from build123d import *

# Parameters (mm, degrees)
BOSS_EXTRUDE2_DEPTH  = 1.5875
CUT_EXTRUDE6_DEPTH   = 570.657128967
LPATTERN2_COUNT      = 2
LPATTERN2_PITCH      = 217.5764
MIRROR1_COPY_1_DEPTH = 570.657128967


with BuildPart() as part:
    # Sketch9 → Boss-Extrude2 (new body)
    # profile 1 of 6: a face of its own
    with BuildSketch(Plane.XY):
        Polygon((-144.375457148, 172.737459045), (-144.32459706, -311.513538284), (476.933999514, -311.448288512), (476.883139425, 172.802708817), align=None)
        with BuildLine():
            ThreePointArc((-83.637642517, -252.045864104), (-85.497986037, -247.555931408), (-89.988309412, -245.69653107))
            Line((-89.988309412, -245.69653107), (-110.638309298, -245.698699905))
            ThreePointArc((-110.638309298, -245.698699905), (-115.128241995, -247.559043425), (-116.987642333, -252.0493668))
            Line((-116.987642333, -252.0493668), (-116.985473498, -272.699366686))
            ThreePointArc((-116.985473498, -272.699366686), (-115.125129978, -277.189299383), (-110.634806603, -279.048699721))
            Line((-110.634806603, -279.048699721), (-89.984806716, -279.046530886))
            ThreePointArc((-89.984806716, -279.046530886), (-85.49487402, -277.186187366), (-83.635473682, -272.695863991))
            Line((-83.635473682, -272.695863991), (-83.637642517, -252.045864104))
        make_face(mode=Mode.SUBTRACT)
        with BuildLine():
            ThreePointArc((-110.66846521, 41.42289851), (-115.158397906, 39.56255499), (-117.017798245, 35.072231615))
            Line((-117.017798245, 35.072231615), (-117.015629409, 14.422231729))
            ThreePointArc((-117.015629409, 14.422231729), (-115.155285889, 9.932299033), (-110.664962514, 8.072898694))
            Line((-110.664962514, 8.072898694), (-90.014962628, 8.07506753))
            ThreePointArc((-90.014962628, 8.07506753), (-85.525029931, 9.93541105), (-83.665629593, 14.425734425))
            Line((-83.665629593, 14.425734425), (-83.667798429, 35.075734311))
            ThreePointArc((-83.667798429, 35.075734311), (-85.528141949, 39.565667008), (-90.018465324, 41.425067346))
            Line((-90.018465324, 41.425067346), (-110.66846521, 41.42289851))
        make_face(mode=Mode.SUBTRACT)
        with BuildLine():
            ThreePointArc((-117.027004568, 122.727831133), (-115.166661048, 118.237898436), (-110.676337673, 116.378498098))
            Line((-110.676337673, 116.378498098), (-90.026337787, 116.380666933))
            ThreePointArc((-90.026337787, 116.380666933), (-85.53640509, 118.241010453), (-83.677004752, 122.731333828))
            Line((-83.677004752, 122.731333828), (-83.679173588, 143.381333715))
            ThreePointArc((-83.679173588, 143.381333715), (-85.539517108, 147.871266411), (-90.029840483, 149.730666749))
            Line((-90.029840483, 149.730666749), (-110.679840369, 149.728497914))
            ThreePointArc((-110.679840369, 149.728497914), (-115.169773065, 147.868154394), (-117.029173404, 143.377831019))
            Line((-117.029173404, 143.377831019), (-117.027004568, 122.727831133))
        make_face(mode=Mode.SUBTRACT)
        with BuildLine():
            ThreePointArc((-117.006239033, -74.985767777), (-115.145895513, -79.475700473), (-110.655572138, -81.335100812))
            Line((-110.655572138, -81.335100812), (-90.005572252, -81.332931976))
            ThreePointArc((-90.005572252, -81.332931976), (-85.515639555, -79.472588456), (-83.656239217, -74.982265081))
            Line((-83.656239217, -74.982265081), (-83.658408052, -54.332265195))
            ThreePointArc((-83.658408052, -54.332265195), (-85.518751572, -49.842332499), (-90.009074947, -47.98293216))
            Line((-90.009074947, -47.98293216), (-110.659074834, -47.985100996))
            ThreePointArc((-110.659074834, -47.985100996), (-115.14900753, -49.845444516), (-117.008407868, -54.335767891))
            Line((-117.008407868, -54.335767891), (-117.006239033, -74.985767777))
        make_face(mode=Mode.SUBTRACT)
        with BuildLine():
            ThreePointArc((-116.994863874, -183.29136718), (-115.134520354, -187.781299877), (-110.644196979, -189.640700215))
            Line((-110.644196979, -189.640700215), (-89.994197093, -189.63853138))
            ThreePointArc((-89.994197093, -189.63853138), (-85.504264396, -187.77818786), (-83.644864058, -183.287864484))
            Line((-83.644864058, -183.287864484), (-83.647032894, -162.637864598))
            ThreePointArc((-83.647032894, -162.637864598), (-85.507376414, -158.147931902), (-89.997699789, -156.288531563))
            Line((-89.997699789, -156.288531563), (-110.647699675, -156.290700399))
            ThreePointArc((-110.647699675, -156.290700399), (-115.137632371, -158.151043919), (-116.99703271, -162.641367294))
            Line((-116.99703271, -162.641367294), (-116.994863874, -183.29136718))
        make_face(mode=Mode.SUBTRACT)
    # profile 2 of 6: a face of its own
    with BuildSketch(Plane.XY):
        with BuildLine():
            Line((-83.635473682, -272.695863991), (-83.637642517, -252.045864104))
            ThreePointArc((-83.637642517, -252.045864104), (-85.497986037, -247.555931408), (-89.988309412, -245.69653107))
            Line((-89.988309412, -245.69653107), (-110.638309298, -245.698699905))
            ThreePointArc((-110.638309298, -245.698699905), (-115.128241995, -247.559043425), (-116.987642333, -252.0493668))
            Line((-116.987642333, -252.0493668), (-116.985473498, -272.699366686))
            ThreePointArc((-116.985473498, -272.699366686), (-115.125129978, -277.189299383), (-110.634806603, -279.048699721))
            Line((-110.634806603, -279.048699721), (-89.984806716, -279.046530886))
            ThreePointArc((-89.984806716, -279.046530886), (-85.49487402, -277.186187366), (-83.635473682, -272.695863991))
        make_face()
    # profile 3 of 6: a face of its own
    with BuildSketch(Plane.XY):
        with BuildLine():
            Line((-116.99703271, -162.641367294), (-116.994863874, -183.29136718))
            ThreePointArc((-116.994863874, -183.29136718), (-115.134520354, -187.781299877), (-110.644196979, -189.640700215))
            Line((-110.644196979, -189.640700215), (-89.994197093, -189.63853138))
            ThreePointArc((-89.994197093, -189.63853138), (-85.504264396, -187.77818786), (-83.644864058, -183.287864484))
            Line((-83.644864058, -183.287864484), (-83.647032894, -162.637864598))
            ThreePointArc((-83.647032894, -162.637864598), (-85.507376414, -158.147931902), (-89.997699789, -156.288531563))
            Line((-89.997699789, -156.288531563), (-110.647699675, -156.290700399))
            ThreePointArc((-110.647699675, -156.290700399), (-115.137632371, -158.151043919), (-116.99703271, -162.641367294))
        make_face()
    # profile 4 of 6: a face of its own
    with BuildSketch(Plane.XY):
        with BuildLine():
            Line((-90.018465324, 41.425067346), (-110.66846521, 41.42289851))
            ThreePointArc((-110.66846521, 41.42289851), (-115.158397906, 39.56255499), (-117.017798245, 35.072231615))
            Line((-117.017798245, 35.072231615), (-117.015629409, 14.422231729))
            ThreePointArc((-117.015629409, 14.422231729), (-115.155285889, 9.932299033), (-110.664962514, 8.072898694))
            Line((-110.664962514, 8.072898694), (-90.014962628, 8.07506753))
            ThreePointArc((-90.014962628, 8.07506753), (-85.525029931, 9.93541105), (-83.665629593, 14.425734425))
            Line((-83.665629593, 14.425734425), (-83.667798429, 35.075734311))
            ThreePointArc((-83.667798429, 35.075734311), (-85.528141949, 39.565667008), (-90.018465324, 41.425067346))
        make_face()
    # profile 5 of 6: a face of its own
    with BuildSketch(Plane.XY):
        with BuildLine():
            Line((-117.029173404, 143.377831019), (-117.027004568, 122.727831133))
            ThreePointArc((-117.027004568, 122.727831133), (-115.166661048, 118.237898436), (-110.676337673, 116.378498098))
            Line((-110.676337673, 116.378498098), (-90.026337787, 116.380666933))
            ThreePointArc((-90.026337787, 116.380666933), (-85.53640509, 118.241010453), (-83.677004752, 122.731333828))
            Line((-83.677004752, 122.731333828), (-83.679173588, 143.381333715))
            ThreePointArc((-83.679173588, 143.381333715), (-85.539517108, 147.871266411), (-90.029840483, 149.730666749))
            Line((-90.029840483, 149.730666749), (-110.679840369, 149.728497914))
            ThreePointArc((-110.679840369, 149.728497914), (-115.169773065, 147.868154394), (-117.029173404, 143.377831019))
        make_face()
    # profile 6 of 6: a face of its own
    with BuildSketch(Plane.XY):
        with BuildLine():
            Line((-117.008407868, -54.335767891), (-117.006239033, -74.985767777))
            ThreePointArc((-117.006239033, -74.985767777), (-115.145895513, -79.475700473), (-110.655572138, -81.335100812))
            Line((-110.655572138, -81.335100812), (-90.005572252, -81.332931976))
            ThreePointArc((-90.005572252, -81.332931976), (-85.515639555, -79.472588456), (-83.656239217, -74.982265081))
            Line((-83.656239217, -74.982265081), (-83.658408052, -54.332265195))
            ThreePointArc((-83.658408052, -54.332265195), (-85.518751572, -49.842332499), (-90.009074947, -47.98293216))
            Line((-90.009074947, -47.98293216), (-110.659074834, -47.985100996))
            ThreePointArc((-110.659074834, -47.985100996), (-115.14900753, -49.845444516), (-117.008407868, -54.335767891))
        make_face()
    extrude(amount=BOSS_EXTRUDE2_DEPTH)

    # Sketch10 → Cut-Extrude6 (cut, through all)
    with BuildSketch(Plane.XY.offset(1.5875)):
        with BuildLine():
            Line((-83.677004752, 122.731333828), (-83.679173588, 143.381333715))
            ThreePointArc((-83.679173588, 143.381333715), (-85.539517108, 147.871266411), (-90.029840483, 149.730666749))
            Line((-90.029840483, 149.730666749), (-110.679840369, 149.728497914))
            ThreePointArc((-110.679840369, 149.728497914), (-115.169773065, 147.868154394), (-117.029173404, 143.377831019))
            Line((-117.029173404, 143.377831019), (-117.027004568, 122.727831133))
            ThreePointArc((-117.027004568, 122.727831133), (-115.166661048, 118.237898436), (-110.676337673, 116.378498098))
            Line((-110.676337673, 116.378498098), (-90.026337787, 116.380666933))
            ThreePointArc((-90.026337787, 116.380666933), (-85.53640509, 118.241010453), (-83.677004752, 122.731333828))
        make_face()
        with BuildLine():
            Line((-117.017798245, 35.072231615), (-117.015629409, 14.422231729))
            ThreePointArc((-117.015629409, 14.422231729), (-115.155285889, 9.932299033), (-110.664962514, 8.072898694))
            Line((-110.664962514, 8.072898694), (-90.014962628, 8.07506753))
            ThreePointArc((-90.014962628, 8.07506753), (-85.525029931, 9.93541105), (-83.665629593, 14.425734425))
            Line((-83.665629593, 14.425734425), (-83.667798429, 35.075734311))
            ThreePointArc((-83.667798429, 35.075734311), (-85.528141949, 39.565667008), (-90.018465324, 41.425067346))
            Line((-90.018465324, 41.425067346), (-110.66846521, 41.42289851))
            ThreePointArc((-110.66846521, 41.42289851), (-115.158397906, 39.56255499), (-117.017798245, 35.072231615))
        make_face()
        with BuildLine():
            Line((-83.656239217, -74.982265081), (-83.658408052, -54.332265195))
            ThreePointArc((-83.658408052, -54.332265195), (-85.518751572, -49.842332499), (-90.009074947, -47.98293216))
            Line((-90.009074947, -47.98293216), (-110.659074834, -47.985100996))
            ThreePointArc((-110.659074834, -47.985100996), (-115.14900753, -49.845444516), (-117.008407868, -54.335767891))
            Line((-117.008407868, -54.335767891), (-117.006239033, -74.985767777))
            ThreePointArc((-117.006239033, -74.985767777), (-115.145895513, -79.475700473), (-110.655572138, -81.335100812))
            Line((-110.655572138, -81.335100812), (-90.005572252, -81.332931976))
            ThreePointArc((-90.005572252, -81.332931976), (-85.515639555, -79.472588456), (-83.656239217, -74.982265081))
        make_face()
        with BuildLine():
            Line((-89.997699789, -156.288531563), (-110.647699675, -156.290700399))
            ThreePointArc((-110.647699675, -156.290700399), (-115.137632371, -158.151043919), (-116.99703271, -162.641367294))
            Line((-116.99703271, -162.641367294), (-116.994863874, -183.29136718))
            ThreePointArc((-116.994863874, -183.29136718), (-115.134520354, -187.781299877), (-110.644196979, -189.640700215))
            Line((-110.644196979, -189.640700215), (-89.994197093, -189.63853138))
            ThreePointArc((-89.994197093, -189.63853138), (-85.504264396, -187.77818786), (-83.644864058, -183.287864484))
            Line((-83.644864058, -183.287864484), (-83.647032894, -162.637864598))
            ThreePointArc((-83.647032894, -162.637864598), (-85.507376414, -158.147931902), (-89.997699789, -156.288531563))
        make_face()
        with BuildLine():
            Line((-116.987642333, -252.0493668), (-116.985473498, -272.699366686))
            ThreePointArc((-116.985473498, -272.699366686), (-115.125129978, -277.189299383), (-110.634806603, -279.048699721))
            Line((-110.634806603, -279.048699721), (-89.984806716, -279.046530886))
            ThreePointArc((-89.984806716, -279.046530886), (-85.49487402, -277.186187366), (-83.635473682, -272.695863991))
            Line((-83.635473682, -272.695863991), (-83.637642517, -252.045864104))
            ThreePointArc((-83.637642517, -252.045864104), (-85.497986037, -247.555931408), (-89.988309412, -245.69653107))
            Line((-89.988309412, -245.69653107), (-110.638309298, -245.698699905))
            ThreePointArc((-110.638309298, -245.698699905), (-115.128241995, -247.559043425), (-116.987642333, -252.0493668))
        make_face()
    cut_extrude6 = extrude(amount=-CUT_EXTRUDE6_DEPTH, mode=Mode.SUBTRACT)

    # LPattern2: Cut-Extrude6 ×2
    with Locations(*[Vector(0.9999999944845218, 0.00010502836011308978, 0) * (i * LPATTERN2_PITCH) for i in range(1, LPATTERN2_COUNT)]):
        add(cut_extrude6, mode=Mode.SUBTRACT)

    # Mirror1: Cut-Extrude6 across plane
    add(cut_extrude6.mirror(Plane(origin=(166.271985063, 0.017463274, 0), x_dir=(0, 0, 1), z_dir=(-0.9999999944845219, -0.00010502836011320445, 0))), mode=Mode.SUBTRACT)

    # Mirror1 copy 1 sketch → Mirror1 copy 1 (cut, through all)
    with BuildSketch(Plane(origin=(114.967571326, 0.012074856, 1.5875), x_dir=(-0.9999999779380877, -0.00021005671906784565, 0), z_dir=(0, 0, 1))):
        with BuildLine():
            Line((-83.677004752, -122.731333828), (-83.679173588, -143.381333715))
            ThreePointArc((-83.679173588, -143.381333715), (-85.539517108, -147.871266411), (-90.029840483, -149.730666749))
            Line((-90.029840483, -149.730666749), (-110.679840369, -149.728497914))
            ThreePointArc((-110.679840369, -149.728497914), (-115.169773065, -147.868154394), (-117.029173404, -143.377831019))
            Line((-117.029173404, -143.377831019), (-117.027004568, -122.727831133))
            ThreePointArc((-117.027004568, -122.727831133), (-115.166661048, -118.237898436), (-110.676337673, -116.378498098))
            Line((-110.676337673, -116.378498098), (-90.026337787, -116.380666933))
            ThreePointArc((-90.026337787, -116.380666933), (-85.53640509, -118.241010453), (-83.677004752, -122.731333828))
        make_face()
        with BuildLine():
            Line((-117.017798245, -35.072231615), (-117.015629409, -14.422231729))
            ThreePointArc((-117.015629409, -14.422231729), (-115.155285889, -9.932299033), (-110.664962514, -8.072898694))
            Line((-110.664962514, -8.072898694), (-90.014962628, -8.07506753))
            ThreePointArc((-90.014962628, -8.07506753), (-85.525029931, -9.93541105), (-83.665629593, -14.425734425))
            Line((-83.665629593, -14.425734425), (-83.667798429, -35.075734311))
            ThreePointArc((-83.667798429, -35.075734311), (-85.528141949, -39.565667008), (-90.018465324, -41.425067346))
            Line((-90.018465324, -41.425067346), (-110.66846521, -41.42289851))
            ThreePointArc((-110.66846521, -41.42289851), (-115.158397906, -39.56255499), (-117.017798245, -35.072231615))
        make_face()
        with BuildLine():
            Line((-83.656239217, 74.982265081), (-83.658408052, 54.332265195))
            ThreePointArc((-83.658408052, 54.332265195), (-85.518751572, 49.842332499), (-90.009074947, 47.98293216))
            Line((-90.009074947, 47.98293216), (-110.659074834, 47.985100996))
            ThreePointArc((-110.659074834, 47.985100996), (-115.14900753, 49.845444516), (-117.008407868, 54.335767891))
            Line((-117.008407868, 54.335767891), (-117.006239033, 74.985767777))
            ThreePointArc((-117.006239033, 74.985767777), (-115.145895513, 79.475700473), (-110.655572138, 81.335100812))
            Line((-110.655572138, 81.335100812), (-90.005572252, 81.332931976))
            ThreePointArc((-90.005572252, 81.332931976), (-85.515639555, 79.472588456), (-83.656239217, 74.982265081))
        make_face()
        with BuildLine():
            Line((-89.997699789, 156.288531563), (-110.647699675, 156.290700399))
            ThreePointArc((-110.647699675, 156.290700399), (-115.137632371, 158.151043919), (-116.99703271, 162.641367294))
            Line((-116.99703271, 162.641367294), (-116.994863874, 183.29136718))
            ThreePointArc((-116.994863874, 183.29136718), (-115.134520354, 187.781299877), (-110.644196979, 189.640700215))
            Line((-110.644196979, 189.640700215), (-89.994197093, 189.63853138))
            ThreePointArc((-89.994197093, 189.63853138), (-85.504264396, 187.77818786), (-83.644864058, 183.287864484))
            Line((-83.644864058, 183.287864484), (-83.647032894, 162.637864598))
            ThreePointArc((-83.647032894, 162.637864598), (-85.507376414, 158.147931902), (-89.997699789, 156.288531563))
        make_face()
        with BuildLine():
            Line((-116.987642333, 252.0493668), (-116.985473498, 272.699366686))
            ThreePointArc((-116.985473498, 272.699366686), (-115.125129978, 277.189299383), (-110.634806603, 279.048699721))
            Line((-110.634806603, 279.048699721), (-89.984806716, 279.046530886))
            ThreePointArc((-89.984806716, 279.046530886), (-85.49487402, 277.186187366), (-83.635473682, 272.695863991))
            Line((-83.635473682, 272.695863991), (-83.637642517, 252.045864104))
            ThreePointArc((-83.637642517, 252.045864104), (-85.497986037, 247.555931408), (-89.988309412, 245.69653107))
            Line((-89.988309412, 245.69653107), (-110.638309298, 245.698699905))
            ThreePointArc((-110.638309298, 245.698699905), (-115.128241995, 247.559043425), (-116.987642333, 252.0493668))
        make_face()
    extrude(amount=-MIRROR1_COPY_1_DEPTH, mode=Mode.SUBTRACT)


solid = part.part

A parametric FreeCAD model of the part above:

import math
import FreeCAD as App
import Part
import Sketcher

V = App.Vector
Q = App.Units.Quantity

doc = App.newDocument("Part")
body = doc.addObject("PartDesign::Body", "Body")

# Sketch on XY plane
sketch1 = body.newObject("Sketcher::SketchObject", "Sketch")
sketch1.AttachmentSupport = (doc.getObject("XY_Plane"), [""])
sketch1.MapMode = "FlatFace"
sketch1.addGeometry([
    Part.LineSegment(V(-144, 173, 0), V(-144, -312, 0)),
    Part.LineSegment(V(-144, -312, 0), V(477, -311, 0)),
    Part.LineSegment(V(477, -311, 0), V(477, 173, 0)),
    Part.LineSegment(V(477, 173, 0), V(-144, 173, 0)),
], False)
sketch1.addConstraint([
    Sketcher.Constraint("Coincident", 0, 2, 1, 1),
    Sketcher.Constraint("Coincident", 1, 2, 2, 1),
    Sketcher.Constraint("Coincident", 2, 2, 3, 1),
    Sketcher.Constraint("Coincident", 3, 2, 0, 1),
    Sketcher.Constraint("Perpendicular", 0, 1),
    Sketcher.Constraint("Perpendicular", 1, 2),
    Sketcher.Constraint("Perpendicular", 2, 3),
    Sketcher.Constraint("Distance", 0, Q("19.065 in")),
    Sketcher.Constraint("Distance", 1, Q("24.459 in")),
    Sketcher.Constraint("DistanceX", -1, 1, 1, 2, Q("476.934 mm")),
    Sketcher.Constraint("DistanceY", 0, 2, -1, 1, Q("311.513538 mm")),
    Sketcher.Constraint("DistanceY", 1, 2, -1, 1, Q("311.448289 mm")),
])
pad1 = body.newObject("PartDesign::Pad", "Pad")
pad1.Profile = sketch1
pad1.Length = Q("0.0625 in")

# Sketch on XY plane
sketch2 = body.newObject("Sketcher::SketchObject", "Sketch001")
sketch2.AttachmentSupport = (doc.getObject("XY_Plane"), [""])
sketch2.MapMode = "FlatFace"
sketch2.AttachmentOffset = App.Placement(V(0, 0, 0.0625 * 25.4), App.Rotation())
sketch2.addGeometry([
    Part.LineSegment(V(-84, 123, 0), V(-84, 143, 0)),  # 0
    Part.ArcOfCircle(Part.Circle(V(-90, 143, 0), V(0, 0, 1), 6), math.radians(0), math.radians(90)),  # 1
    Part.LineSegment(V(-90, 150, 0), V(-111, 150, 0)),  # 2
    Part.ArcOfCircle(Part.Circle(V(-111, 143, 0), V(0, 0, 1), 6), math.radians(90), math.radians(180)),  # 3
    Part.LineSegment(V(-117, 143, 0), V(-117, 123, 0)),  # 4
    Part.ArcOfCircle(Part.Circle(V(-111, 123, 0), V(0, 0, 1), 6), math.radians(-180), math.radians(-90)),  # 5
    Part.LineSegment(V(-111, 116, 0), V(-90, 116, 0)),  # 6
    Part.ArcOfCircle(Part.Circle(V(-90, 123, 0), V(0, 0, 1), 6), math.radians(-90), math.radians(0)),  # 7
    Part.LineSegment(V(-117, 35, 0), V(-117, 14, 0)),  # 8
    Part.ArcOfCircle(Part.Circle(V(-111, 14, 0), V(0, 0, 1), 6), math.radians(-180), math.radians(-90)),  # 9
    Part.LineSegment(V(-111, 8, 0), V(-90, 8, 0)),  # 10
    Part.ArcOfCircle(Part.Circle(V(-90, 14, 0), V(0, 0, 1), 6), math.radians(-90), math.radians(0)),  # 11
    Part.LineSegment(V(-84, 14, 0), V(-84, 35, 0)),  # 12
    Part.ArcOfCircle(Part.Circle(V(-90, 35, 0), V(0, 0, 1), 6), math.radians(0), math.radians(90)),  # 13
    Part.LineSegment(V(-90, 41, 0), V(-111, 41, 0)),  # 14
    Part.ArcOfCircle(Part.Circle(V(-111, 35, 0), V(0, 0, 1), 6), math.radians(90), math.radians(180)),  # 15
    Part.LineSegment(V(-84, -75, 0), V(-84, -54, 0)),  # 16
    Part.ArcOfCircle(Part.Circle(V(-90, -54, 0), V(0, 0, 1), 6), math.radians(0), math.radians(90)),  # 17
    Part.LineSegment(V(-90, -48, 0), V(-111, -48, 0)),  # 18
    Part.ArcOfCircle(Part.Circle(V(-111, -54, 0), V(0, 0, 1), 6), math.radians(90), math.radians(180)),  # 19
    Part.LineSegment(V(-117, -54, 0), V(-117, -75, 0)),  # 20
    Part.ArcOfCircle(Part.Circle(V(-111, -75, 0), V(0, 0, 1), 6), math.radians(-180), math.radians(-90)),  # 21
    Part.LineSegment(V(-111, -81, 0), V(-90, -81, 0)),  # 22
    Part.ArcOfCircle(Part.Circle(V(-90, -75, 0), V(0, 0, 1), 6), math.radians(-90), math.radians(0)),  # 23
    Part.LineSegment(V(-90, -156, 0), V(-111, -156, 0)),  # 24
    Part.ArcOfCircle(Part.Circle(V(-111, -163, 0), V(0, 0, 1), 6), math.radians(90), math.radians(180)),  # 25
    Part.LineSegment(V(-117, -163, 0), V(-117, -183, 0)),  # 26
    Part.ArcOfCircle(Part.Circle(V(-111, -183, 0), V(0, 0, 1), 6), math.radians(-180), math.radians(-90)),  # 27
    Part.LineSegment(V(-111, -190, 0), V(-90, -190, 0)),  # 28
    Part.ArcOfCircle(Part.Circle(V(-90, -183, 0), V(0, 0, 1), 6), math.radians(-90), math.radians(0)),  # 29
    Part.LineSegment(V(-84, -183, 0), V(-84, -163, 0)),  # 30
    Part.ArcOfCircle(Part.Circle(V(-90, -163, 0), V(0, 0, 1), 6), math.radians(0), math.radians(90)),  # 31
    Part.LineSegment(V(-117, -252, 0), V(-117, -273, 0)),  # 32
    Part.ArcOfCircle(Part.Circle(V(-111, -273, 0), V(0, 0, 1), 6), math.radians(-180), math.radians(-90)),  # 33
    Part.LineSegment(V(-111, -279, 0), V(-90, -279, 0)),  # 34
    Part.ArcOfCircle(Part.Circle(V(-90, -273, 0), V(0, 0, 1), 6), math.radians(-90), math.radians(0)),  # 35
    Part.LineSegment(V(-84, -273, 0), V(-84, -252, 0)),  # 36
    Part.ArcOfCircle(Part.Circle(V(-90, -252, 0), V(0, 0, 1), 6), math.radians(0), math.radians(90)),  # 37
    Part.LineSegment(V(-90, -246, 0), V(-111, -246, 0)),  # 38
    Part.ArcOfCircle(Part.Circle(V(-111, -252, 0), V(0, 0, 1), 6), math.radians(90), math.radians(180)),  # 39
], False)
sketch2.addConstraint([
    Sketcher.Constraint("Tangent", 0, 2, 1, 1),
    Sketcher.Constraint("Tangent", 1, 2, 2, 1),
    Sketcher.Constraint("Tangent", 2, 2, 3, 1),
    Sketcher.Constraint("Tangent", 3, 2, 4, 1),
    Sketcher.Constraint("Tangent", 4, 2, 5, 1),
    Sketcher.Constraint("Tangent", 5, 2, 6, 1),
    Sketcher.Constraint("Tangent", 6, 2, 7, 1),
    Sketcher.Constraint("Tangent", 7, 2, 0, 1),
    Sketcher.Constraint("Tangent", 8, 2, 9, 1),
    Sketcher.Constraint("Tangent", 9, 2, 10, 1),
    Sketcher.Constraint("Tangent", 10, 2, 11, 1),
    Sketcher.Constraint("Tangent", 11, 2, 12, 1),
    Sketcher.Constraint("Tangent", 12, 2, 13, 1),
    Sketcher.Constraint("Tangent", 13, 2, 14, 1),
    Sketcher.Constraint("Tangent", 14, 2, 15, 1),
    Sketcher.Constraint("Tangent", 15, 2, 8, 1),
    Sketcher.Constraint("Tangent", 16, 2, 17, 1),
    Sketcher.Constraint("Tangent", 17, 2, 18, 1),
    Sketcher.Constraint("Tangent", 18, 2, 19, 1),
    Sketcher.Constraint("Tangent", 19, 2, 20, 1),
    Sketcher.Constraint("Tangent", 20, 2, 21, 1),
    Sketcher.Constraint("Tangent", 21, 2, 22, 1),
    Sketcher.Constraint("Tangent", 22, 2, 23, 1),
    Sketcher.Constraint("Tangent", 23, 2, 16, 1),
    Sketcher.Constraint("Tangent", 24, 2, 25, 1),
    Sketcher.Constraint("Tangent", 25, 2, 26, 1),
    Sketcher.Constraint("Tangent", 26, 2, 27, 1),
    Sketcher.Constraint("Tangent", 27, 2, 28, 1),
    Sketcher.Constraint("Tangent", 28, 2, 29, 1),
    Sketcher.Constraint("Tangent", 29, 2, 30, 1),
    Sketcher.Constraint("Tangent", 30, 2, 31, 1),
    Sketcher.Constraint("Tangent", 31, 2, 24, 1),
    Sketcher.Constraint("Tangent", 32, 2, 33, 1),
    Sketcher.Constraint("Tangent", 33, 2, 34, 1),
    Sketcher.Constraint("Tangent", 34, 2, 35, 1),
    Sketcher.Constraint("Tangent", 35, 2, 36, 1),
    Sketcher.Constraint("Tangent", 36, 2, 37, 1),
    Sketcher.Constraint("Tangent", 37, 2, 38, 1),
    Sketcher.Constraint("Tangent", 38, 2, 39, 1),
    Sketcher.Constraint("Tangent", 39, 2, 32, 1),
    Sketcher.Constraint("Equal", 1, 3),
    Sketcher.Constraint("Equal", 3, 5),
    Sketcher.Constraint("Equal", 5, 7),
    Sketcher.Constraint("Equal", 7, 9),
    Sketcher.Constraint("Equal", 9, 11),
    Sketcher.Constraint("Equal", 11, 13),
    Sketcher.Constraint("Equal", 13, 15),
    Sketcher.Constraint("Equal", 15, 17),
    Sketcher.Constraint("Equal", 17, 19),
    Sketcher.Constraint("Equal", 19, 21),
    Sketcher.Constraint("Equal", 21, 23),
    Sketcher.Constraint("Equal", 23, 25),
    Sketcher.Constraint("Equal", 25, 27),
    Sketcher.Constraint("Equal", 27, 29),
    Sketcher.Constraint("Equal", 29, 31),
    Sketcher.Constraint("Equal", 31, 33),
    Sketcher.Constraint("Equal", 33, 35),
    Sketcher.Constraint("Equal", 35, 37),
    Sketcher.Constraint("Equal", 37, 39),
    Sketcher.Constraint("Perpendicular", 0, 2),
    Sketcher.Constraint("Perpendicular", 2, 4),
    Sketcher.Constraint("Perpendicular", 4, 6),
    Sketcher.Constraint("Perpendicular", 6, 8),
    Sketcher.Constraint("Perpendicular", 8, 10),
    Sketcher.Constraint("Perpendicular", 10, 12),
    Sketcher.Constraint("Perpendicular", 12, 14),
    Sketcher.Constraint("Perpendicular", 14, 16),
    Sketcher.Constraint("Perpendicular", 16, 18),
    Sketcher.Constraint("Perpendicular", 18, 20),
    Sketcher.Constraint("Perpendicular", 20, 22),
    Sketcher.Constraint("Parallel", 22, 24),
    Sketcher.Constraint("Perpendicular", 24, 26),
    Sketcher.Constraint("Perpendicular", 26, 28),
    Sketcher.Constraint("Perpendicular", 28, 30),
    Sketcher.Constraint("Parallel", 30, 32),
    Sketcher.Constraint("Perpendicular", 32, 34),
    Sketcher.Constraint("Perpendicular", 34, 36),
    Sketcher.Constraint("Perpendicular", 36, 38),
    Sketcher.Constraint("Equal", 0, 2),
    Sketcher.Constraint("Equal", 6, 8),
    Sketcher.Constraint("Equal", 8, 10),
    Sketcher.Constraint("Equal", 14, 16),
    Sketcher.Constraint("Equal", 16, 18),
    Sketcher.Constraint("Equal", 22, 24),
    Sketcher.Constraint("Equal", 24, 26),
    Sketcher.Constraint("Equal", 30, 32),
    Sketcher.Constraint("Equal", 32, 34),
    Sketcher.Constraint("Radius", 1, Q("0.25 in")),
    Sketcher.Constraint("DistanceY", 17, 3, 13, 3, Q("3.52 in")),
    Sketcher.Constraint("DistanceY", 33, 3, 27, 3, Q("3.52 in")),
    Sketcher.Constraint("DistanceX", 15, 3, -1, 1, Q("4.3569999 in")),
    Sketcher.Constraint("DistanceY", 9, 3, 5, 3, Q("4.264 in")),
    Sketcher.Constraint("DistanceY", 25, 3, 19, 3, Q("4.264 in")),
    Sketcher.Constraint("Distance", 0, Q("20.65 mm")),
    Sketcher.Constraint("DistanceY", -1, 1, 5, 3, Q("122.728498 mm")),
    Sketcher.Constraint("DistanceX", 24, 2, -1, 1, Q("110.6477 mm")),
    Sketcher.Constraint("DistanceX", 9, 3, -1, 1, Q("110.665629 mm")),
    Sketcher.Constraint("DistanceX", 17, 3, -1, 1, Q("90.008408 mm")),
    Sketcher.Constraint("DistanceX", 1, 2, -1, 1, Q("90.02984 mm")),
    Sketcher.Constraint("DistanceX", 37, 2, -1, 1, Q("89.988309 mm")),
])
pocket1 = body.newObject("PartDesign::Pocket", "Pocket")
pocket1.Profile = sketch2
pocket1.Type = "ThroughAll"
doc.recompute()

datumline = body.newObject("PartDesign::Line", "DatumLine")
datumline.Placement = App.Placement(V(0, 0, 0), App.Rotation(V(0, 0, 1), V(0.999999994, 0.000105028, 0)))
linearpattern = body.newObject("PartDesign::LinearPattern", "LinearPattern")
linearpattern.Originals = [pocket1]
linearpattern.Direction = (datumline, [""])
linearpattern.Mode = "offset"
linearpattern.Offset = Q("8.566 in")
linearpattern.Occurrences = 2
body.Tip = linearpattern
doc.recompute()

datumplane = body.newObject("PartDesign::Plane", "DatumPlane")
datumplane.Placement = App.Placement(V(166.271985, 0.017463, 0), App.Rotation(V(-0.000105028, 0.999999994, 0), V(0, 0, -1), V(-0.999999994, -0.000105028, 0), "ZXY"))
mirrored = body.newObject("PartDesign::Mirrored", "Mirrored")
mirrored.Originals = [pocket1]
mirrored.MirrorPlane = (datumplane, [""])
body.Tip = mirrored

# Sketch on XY plane
sketch3 = body.newObject("Sketcher::SketchObject", "Sketch002")
sketch3.AttachmentSupport = (doc.getObject("XY_Plane"), [""])
sketch3.MapMode = "FlatFace"
sketch3.AttachmentOffset = App.Placement(V(0, 0, 0.0625 * 25.4), App.Rotation())
sketch3.addGeometry([
    Part.LineSegment(V(199, 143, 0), V(199, 123, 0)),  # 0
    Part.ArcOfCircle(Part.Circle(V(205, 123, 0), V(0, 0, 1), 6), math.radians(-180), math.radians(-90)),  # 1
    Part.LineSegment(V(205, 116, 0), V(226, 116, 0)),  # 2
    Part.ArcOfCircle(Part.Circle(V(226, 123, 0), V(0, 0, 1), 6), math.radians(-90), math.radians(0)),  # 3
    Part.LineSegment(V(232, 123, 0), V(232, 143, 0)),  # 4
    Part.ArcOfCircle(Part.Circle(V(226, 143, 0), V(0, 0, 1), 6), math.radians(0), math.radians(90)),  # 5
    Part.LineSegment(V(226, 150, 0), V(205, 150, 0)),  # 6
    Part.ArcOfCircle(Part.Circle(V(205, 143, 0), V(0, 0, 1), 6), math.radians(90), math.radians(180)),  # 7
    Part.LineSegment(V(232, 14, 0), V(232, 35, 0)),  # 8
    Part.ArcOfCircle(Part.Circle(V(226, 35, 0), V(0, 0, 1), 6), math.radians(0), math.radians(90)),  # 9
    Part.LineSegment(V(226, 41, 0), V(205, 41, 0)),  # 10
    Part.ArcOfCircle(Part.Circle(V(205, 35, 0), V(0, 0, 1), 6), math.radians(90), math.radians(180)),  # 11
    Part.LineSegment(V(199, 35, 0), V(199, 14, 0)),  # 12
    Part.ArcOfCircle(Part.Circle(V(205, 14, 0), V(0, 0, 1), 6), math.radians(-180), math.radians(-90)),  # 13
    Part.LineSegment(V(205, 8, 0), V(226, 8, 0)),  # 14
    Part.ArcOfCircle(Part.Circle(V(226, 14, 0), V(0, 0, 1), 6), math.radians(-90), math.radians(0)),  # 15
    Part.LineSegment(V(199, -54, 0), V(199, -75, 0)),  # 16
    Part.ArcOfCircle(Part.Circle(V(205, -75, 0), V(0, 0, 1), 6), math.radians(-180), math.radians(-90)),  # 17
    Part.LineSegment(V(205, -81, 0), V(226, -81, 0)),  # 18
    Part.ArcOfCircle(Part.Circle(V(226, -75, 0), V(0, 0, 1), 6), math.radians(-90), math.radians(0)),  # 19
    Part.LineSegment(V(232, -75, 0), V(232, -54, 0)),  # 20
    Part.ArcOfCircle(Part.Circle(V(226, -54, 0), V(0, 0, 1), 6), math.radians(0), math.radians(90)),  # 21
    Part.LineSegment(V(226, -48, 0), V(205, -48, 0)),  # 22
    Part.ArcOfCircle(Part.Circle(V(205, -54, 0), V(0, 0, 1), 6), math.radians(90), math.radians(180)),  # 23
    Part.LineSegment(V(226, -156, 0), V(205, -156, 0)),  # 24
    Part.ArcOfCircle(Part.Circle(V(205, -163, 0), V(0, 0, 1), 6), math.radians(90), math.radians(180)),  # 25
    Part.LineSegment(V(199, -163, 0), V(199, -183, 0)),  # 26
    Part.ArcOfCircle(Part.Circle(V(205, -183, 0), V(0, 0, 1), 6), math.radians(-180), math.radians(-90)),  # 27
    Part.LineSegment(V(205, -190, 0), V(226, -190, 0)),  # 28
    Part.ArcOfCircle(Part.Circle(V(226, -183, 0), V(0, 0, 1), 6), math.radians(-90), math.radians(0)),  # 29
    Part.LineSegment(V(232, -183, 0), V(232, -163, 0)),  # 30
    Part.ArcOfCircle(Part.Circle(V(226, -163, 0), V(0, 0, 1), 6), math.radians(0), math.radians(90)),  # 31
    Part.LineSegment(V(232, -273, 0), V(232, -252, 0)),  # 32
    Part.ArcOfCircle(Part.Circle(V(226, -252, 0), V(0, 0, 1), 6), math.radians(0), math.radians(90)),  # 33
    Part.LineSegment(V(226, -246, 0), V(205, -246, 0)),  # 34
    Part.ArcOfCircle(Part.Circle(V(205, -252, 0), V(0, 0, 1), 6), math.radians(90), math.radians(180)),  # 35
    Part.LineSegment(V(199, -252, 0), V(199, -273, 0)),  # 36
    Part.ArcOfCircle(Part.Circle(V(205, -273, 0), V(0, 0, 1), 6), math.radians(-180), math.radians(-90)),  # 37
    Part.LineSegment(V(205, -279, 0), V(226, -279, 0)),  # 38
    Part.ArcOfCircle(Part.Circle(V(226, -273, 0), V(0, 0, 1), 6), math.radians(-90), math.radians(0)),  # 39
], False)
sketch3.addConstraint([
    Sketcher.Constraint("Tangent", 0, 2, 1, 1),
    Sketcher.Constraint("Tangent", 1, 2, 2, 1),
    Sketcher.Constraint("Tangent", 2, 2, 3, 1),
    Sketcher.Constraint("Tangent", 3, 2, 4, 1),
    Sketcher.Constraint("Tangent", 4, 2, 5, 1),
    Sketcher.Constraint("Tangent", 5, 2, 6, 1),
    Sketcher.Constraint("Tangent", 6, 2, 7, 1),
    Sketcher.Constraint("Tangent", 7, 2, 0, 1),
    Sketcher.Constraint("Tangent", 8, 2, 9, 1),
    Sketcher.Constraint("Tangent", 9, 2, 10, 1),
    Sketcher.Constraint("Tangent", 10, 2, 11, 1),
    Sketcher.Constraint("Tangent", 11, 2, 12, 1),
    Sketcher.Constraint("Tangent", 12, 2, 13, 1),
    Sketcher.Constraint("Tangent", 13, 2, 14, 1),
    Sketcher.Constraint("Tangent", 14, 2, 15, 1),
    Sketcher.Constraint("Tangent", 15, 2, 8, 1),
    Sketcher.Constraint("Tangent", 16, 2, 17, 1),
    Sketcher.Constraint("Tangent", 17, 2, 18, 1),
    Sketcher.Constraint("Tangent", 18, 2, 19, 1),
    Sketcher.Constraint("Tangent", 19, 2, 20, 1),
    Sketcher.Constraint("Tangent", 20, 2, 21, 1),
    Sketcher.Constraint("Tangent", 21, 2, 22, 1),
    Sketcher.Constraint("Tangent", 22, 2, 23, 1),
    Sketcher.Constraint("Tangent", 23, 2, 16, 1),
    Sketcher.Constraint("Tangent", 24, 2, 25, 1),
    Sketcher.Constraint("Tangent", 25, 2, 26, 1),
    Sketcher.Constraint("Tangent", 26, 2, 27, 1),
    Sketcher.Constraint("Tangent", 27, 2, 28, 1),
    Sketcher.Constraint("Tangent", 28, 2, 29, 1),
    Sketcher.Constraint("Tangent", 29, 2, 30, 1),
    Sketcher.Constraint("Tangent", 30, 2, 31, 1),
    Sketcher.Constraint("Tangent", 31, 2, 24, 1),
    Sketcher.Constraint("Tangent", 32, 2, 33, 1),
    Sketcher.Constraint("Tangent", 33, 2, 34, 1),
    Sketcher.Constraint("Tangent", 34, 2, 35, 1),
    Sketcher.Constraint("Tangent", 35, 2, 36, 1),
    Sketcher.Constraint("Tangent", 36, 2, 37, 1),
    Sketcher.Constraint("Tangent", 37, 2, 38, 1),
    Sketcher.Constraint("Tangent", 38, 2, 39, 1),
    Sketcher.Constraint("Tangent", 39, 2, 32, 1),
    Sketcher.Constraint("Equal", 1, 3),
    Sketcher.Constraint("Equal", 3, 5),
    Sketcher.Constraint("Equal", 5, 7),
    Sketcher.Constraint("Equal", 7, 9),
    Sketcher.Constraint("Equal", 9, 11),
    Sketcher.Constraint("Equal", 11, 13),
    Sketcher.Constraint("Equal", 13, 15),
    Sketcher.Constraint("Equal", 15, 17),
    Sketcher.Constraint("Equal", 17, 19),
    Sketcher.Constraint("Equal", 19, 21),
    Sketcher.Constraint("Equal", 21, 23),
    Sketcher.Constraint("Equal", 23, 25),
    Sketcher.Constraint("Equal", 25, 27),
    Sketcher.Constraint("Equal", 27, 29),
    Sketcher.Constraint("Equal", 29, 31),
    Sketcher.Constraint("Equal", 31, 33),
    Sketcher.Constraint("Equal", 33, 35),
    Sketcher.Constraint("Equal", 35, 37),
    Sketcher.Constraint("Equal", 37, 39),
    Sketcher.Constraint("Perpendicular", 0, 2),
    Sketcher.Constraint("Perpendicular", 2, 4),
    Sketcher.Constraint("Perpendicular", 4, 6),
    Sketcher.Constraint("Perpendicular", 6, 8),
    Sketcher.Constraint("Perpendicular", 8, 10),
    Sketcher.Constraint("Perpendicular", 10, 12),
    Sketcher.Constraint("Perpendicular", 12, 14),
    Sketcher.Constraint("Perpendicular", 14, 16),
    Sketcher.Constraint("Perpendicular", 16, 18),
    Sketcher.Constraint("Perpendicular", 18, 20),
    Sketcher.Constraint("Perpendicular", 20, 22),
    Sketcher.Constraint("Parallel", 22, 24),
    Sketcher.Constraint("Perpendicular", 24, 26),
    Sketcher.Constraint("Perpendicular", 26, 28),
    Sketcher.Constraint("Perpendicular", 28, 30),
    Sketcher.Constraint("Parallel", 30, 32),
    Sketcher.Constraint("Perpendicular", 32, 34),
    Sketcher.Constraint("Perpendicular", 34, 36),
    Sketcher.Constraint("Perpendicular", 36, 38),
    Sketcher.Constraint("Equal", 0, 2),
    Sketcher.Constraint("Equal", 6, 8),
    Sketcher.Constraint("Equal", 8, 10),
    Sketcher.Constraint("Equal", 14, 16),
    Sketcher.Constraint("Equal", 16, 18),
    Sketcher.Constraint("Equal", 22, 24),
    Sketcher.Constraint("Equal", 24, 26),
    Sketcher.Constraint("Equal", 30, 32),
    Sketcher.Constraint("Equal", 32, 34),
    Sketcher.Constraint("Radius", 1, Q("0.25 in")),
    Sketcher.Constraint("DistanceX", -1, 1, 11, 3, Q("8.07 in")),
    Sketcher.Constraint("DistanceY", 17, 3, 13, 3, Q("3.52 in")),
    Sketcher.Constraint("DistanceY", 33, 3, 31, 3, Q("3.52 in")),
    Sketcher.Constraint("DistanceY", 9, 3, 5, 3, Q("4.264 in")),
    Sketcher.Constraint("DistanceY", 25, 3, 23, 3, Q("4.264 in")),
    Sketcher.Constraint("Distance", 0, Q("20.65 mm")),
    Sketcher.Constraint("DistanceX", -1, 1, 24, 2, Q("204.998099 mm")),
    Sketcher.Constraint("DistanceX", -1, 1, 27, 2, Q("205.001601 mm")),
    Sketcher.Constraint("DistanceY", -1, 1, 1, 3, Q("122.76165 mm")),
    Sketcher.Constraint("DistanceX", -1, 1, 17, 3, Q("204.989559 mm")),
    Sketcher.Constraint("DistanceX", -1, 1, 1, 2, Q("204.969461 mm")),
    Sketcher.Constraint("DistanceX", -1, 1, 33, 2, Q("225.657489 mm")),
])
pocket2 = body.newObject("PartDesign::Pocket", "Pocket001")
pocket2.Profile = sketch3
pocket2.Type = "ThroughAll"

doc.recompute()
